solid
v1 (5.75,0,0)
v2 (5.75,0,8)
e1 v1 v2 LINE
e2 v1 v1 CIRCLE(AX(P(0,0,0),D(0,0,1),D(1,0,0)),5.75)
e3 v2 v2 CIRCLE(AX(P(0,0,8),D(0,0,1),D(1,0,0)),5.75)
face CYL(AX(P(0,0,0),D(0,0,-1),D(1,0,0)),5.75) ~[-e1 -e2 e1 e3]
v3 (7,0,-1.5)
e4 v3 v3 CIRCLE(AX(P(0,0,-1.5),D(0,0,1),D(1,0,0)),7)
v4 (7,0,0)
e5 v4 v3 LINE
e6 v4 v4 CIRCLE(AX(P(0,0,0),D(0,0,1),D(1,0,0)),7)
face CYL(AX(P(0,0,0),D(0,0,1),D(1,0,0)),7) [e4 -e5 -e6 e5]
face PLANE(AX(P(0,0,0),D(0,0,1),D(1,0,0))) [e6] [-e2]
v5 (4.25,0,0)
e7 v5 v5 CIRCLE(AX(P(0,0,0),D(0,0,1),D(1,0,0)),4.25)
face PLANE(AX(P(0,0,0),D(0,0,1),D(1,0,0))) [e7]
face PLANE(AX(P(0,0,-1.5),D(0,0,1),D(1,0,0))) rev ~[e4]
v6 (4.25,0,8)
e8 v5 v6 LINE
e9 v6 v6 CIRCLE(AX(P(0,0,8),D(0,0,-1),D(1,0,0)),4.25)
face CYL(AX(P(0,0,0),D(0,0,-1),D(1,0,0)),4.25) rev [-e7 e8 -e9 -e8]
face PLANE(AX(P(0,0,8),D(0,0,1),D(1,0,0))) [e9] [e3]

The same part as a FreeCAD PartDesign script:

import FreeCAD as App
import Part
import Sketcher

V = App.Vector
Q = App.Units.Quantity

doc = App.newDocument("Part")
body = doc.addObject("PartDesign::Body", "Body")

sketch1 = doc.addObject("Sketcher::SketchObject", "Sketch")
body.addObject(sketch1)
sketch1.AttachmentSupport = (doc.XY_Plane, [""])
sketch1.MapMode = "FlatFace"
sketch1.addGeometry(Part.Circle(V(0, 0, 0), V(0, 0, 1), 6), False)
sketch1.addConstraint(Sketcher.Constraint("Coincident", 0, 3, -1, 1))
sketch1.addConstraint(Sketcher.Constraint("Diameter", 0, Q("11.5 mm")))
pad1 = doc.addObject("PartDesign::Pad", "Pad")
body.addObject(pad1)
pad1.Profile = sketch1
pad1.Length = 8

sketch2 = doc.addObject("Sketcher::SketchObject", "Sketch001")
body.addObject(sketch2)
sketch2.AttachmentSupport = (doc.XY_Plane, [""])
sketch2.MapMode = "FlatFace"
sketch2.addGeometry(Part.Circle(V(0, 0, 0), V(0, 0, 1), 7), False)
sketch2.addConstraint(Sketcher.Constraint("Coincident", 0, 3, -1, 1))
sketch2.addConstraint(Sketcher.Constraint("Diameter", 0, Q("14 mm")))
pad2 = doc.addObject("PartDesign::Pad", "Pad001")
body.addObject(pad2)
pad2.Profile = sketch2
pad2.Length = 1.5
pad2.Reversed = True

sketch3 = doc.addObject("Sketcher::SketchObject", "Sketch002")
body.addObject(sketch3)
sketch3.AttachmentSupport = (doc.XY_Plane, [""])
sketch3.MapMode = "FlatFace"
sketch3.addGeometry(Part.Circle(V(0, 0, 0), V(0, 0, 1), 4.2), False)
sketch3.addConstraint(Sketcher.Constraint("Coincident", 0, 3, -1, 1))
sketch3.addConstraint(Sketcher.Constraint("Diameter", 0, Q("8.5 mm")))
pocket1 = doc.addObject("PartDesign::Pocket", "Pocket")
body.addObject(pocket1)
pocket1.Profile = sketch3
pocket1.Type = "UpToFirst"
pocket1.Reversed = True

doc.recompute()
